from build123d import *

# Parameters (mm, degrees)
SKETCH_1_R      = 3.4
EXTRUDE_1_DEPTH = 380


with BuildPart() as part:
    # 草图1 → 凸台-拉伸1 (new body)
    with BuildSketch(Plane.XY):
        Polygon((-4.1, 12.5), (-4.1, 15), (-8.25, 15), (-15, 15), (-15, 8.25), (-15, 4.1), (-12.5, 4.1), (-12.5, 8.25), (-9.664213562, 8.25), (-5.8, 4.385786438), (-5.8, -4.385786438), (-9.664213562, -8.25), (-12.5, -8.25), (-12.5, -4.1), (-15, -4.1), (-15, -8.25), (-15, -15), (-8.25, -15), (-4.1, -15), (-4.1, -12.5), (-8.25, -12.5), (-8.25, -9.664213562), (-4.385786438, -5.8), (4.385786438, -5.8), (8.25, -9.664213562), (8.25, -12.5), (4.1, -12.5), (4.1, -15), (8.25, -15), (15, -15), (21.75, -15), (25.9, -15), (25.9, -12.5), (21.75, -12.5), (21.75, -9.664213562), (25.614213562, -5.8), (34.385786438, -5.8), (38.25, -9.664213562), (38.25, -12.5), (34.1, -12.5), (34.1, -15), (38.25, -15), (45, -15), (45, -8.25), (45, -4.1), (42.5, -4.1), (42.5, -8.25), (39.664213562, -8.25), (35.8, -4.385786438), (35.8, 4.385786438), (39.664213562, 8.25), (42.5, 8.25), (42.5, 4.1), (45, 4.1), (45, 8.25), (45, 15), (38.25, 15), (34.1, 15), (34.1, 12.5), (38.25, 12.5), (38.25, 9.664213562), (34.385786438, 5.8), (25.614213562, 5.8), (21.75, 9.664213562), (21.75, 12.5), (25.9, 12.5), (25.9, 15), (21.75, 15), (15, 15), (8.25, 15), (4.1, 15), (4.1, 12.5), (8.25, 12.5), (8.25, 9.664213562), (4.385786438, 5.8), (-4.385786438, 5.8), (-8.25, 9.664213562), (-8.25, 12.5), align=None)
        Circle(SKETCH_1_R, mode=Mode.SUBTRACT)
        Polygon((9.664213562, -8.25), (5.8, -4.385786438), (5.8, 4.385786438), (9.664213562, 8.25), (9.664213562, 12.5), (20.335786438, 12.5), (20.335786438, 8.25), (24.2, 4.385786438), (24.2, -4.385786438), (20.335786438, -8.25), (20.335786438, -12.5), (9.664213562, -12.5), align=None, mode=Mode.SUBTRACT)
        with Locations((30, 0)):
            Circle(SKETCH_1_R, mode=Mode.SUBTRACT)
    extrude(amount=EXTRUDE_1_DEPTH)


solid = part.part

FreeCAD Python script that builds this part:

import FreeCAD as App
import Part
import Sketcher

V = App.Vector
Q = App.Units.Quantity


def add_polygon(sketch, points):
    """Adds a closed chain of lines whose ends are joined by coincident constraints."""
    first, n = sketch.GeometryCount, len(points)
    for a, b in zip(points, points[1:] + points[:1]):
        sketch.addGeometry(Part.LineSegment(App.Vector(*a, 0), App.Vector(*b, 0)), False)
    for i in range(n):
        sketch.addConstraint(Sketcher.Constraint("Coincident", first + i, 2, first + (i + 1) % n, 1))

doc = App.newDocument("Part")
body = doc.addObject("PartDesign::Body", "Body")

sketch1 = doc.addObject("Sketcher::SketchObject", "Sketch")
body.addObject(sketch1)
sketch1.AttachmentSupport = (doc.XY_Plane, [""])
sketch1.MapMode = "FlatFace"
add_polygon(sketch1, [(-4.1, 12.5), (-4.1, 15), (-15, 15), (-15, 4.1), (-12.5, 4.1), (-12.5, 8.2), (-9.7, 8.2), (-5.8, 4.4), (-5.8, -4.4), (-9.7, -8.2), (-12.5, -8.2), (-12.5, -4.1), (-15, -4.1), (-15, -15), (-4.1, -15), (-4.1, -12.5), (-8.2, -12.5), (-8.2, -9.7), (-4.4, -5.8), (4.4, -5.8), (8.2, -9.7), (8.2, -12.5), (4.1, -12.5), (4.1, -15), (25.9, -15), (25.9, -12.5), (21.8, -12.5), (21.8, -9.7), (25.6, -5.8), (34.4, -5.8), (38.2, -9.7), (38.2, -12.5), (34.1, -12.5), (34.1, -15), (45, -15), (45, -4.1), (42.5, -4.1), (42.5, -8.2), (39.7, -8.2), (35.8, -4.4), (35.8, 4.4), (39.7, 8.2), (42.5, 8.2), (42.5, 4.1), (45, 4.1), (45, 15), (34.1, 15), (34.1, 12.5), (38.2, 12.5), (38.2, 9.7), (34.4, 5.8), (25.6, 5.8), (21.8, 9.7), (21.8, 12.5), (25.9, 12.5), (25.9, 15), (4.1, 15), (4.1, 12.5), (8.2, 12.5), (8.2, 9.7), (4.4, 5.8), (-4.4, 5.8), (-8.2, 9.7), (-8.2, 12.5)])
sketch1.addGeometry(Part.Circle(V(0, 0, 0), V(0, 0, 1), 3.4), False)
add_polygon(sketch1, [(9.7, -12.5), (9.7, -8.2), (5.8, -4.4), (5.8, 4.4), (9.7, 8.2), (9.7, 12.5), (20.3, 12.5), (20.3, 8.2), (24.2, 4.4), (24.2, -4.4), (20.3, -8.2), (20.3, -12.5)])
sketch1.addGeometry(Part.Circle(V(30, 0, 0), V(0, 0, 1), 3.4), False)
sketch1.addConstraint([
    Sketcher.Constraint("Vertical", 0),
    Sketcher.Constraint("Horizontal", 1),
    Sketcher.Constraint("Vertical", 2),
    Sketcher.Constraint("Horizontal", 3),
    Sketcher.Constraint("Vertical", 4),
    Sketcher.Constraint("Horizontal", 5),
    Sketcher.Constraint("Vertical", 7),
    Sketcher.Constraint("Horizontal", 9),
    Sketcher.Constraint("Vertical", 10),
    Sketcher.Constraint("Horizontal", 11),
    Sketcher.Constraint("Vertical", 12),
    Sketcher.Constraint("Horizontal", 13),
    Sketcher.Constraint("Vertical", 14),
    Sketcher.Constraint("Horizontal", 15),
    Sketcher.Constraint("Vertical", 16),
    Sketcher.Constraint("Horizontal", 18),
    Sketcher.Constraint("Vertical", 20),
    Sketcher.Constraint("Horizontal", 21),
    Sketcher.Constraint("Vertical", 22),
    Sketcher.Constraint("Horizontal", 23),
    Sketcher.Constraint("Vertical", 24),
    Sketcher.Constraint("Horizontal", 25),
    Sketcher.Constraint("Vertical", 26),
    Sketcher.Constraint("Horizontal", 28),
    Sketcher.Constraint("Vertical", 30),
    Sketcher.Constraint("Horizontal", 31),
    Sketcher.Constraint("Vertical", 32),
    Sketcher.Constraint("Horizontal", 33),
    Sketcher.Constraint("Vertical", 34),
    Sketcher.Constraint("Horizontal", 35),
    Sketcher.Constraint("Vertical", 36),
    Sketcher.Constraint("Horizontal", 37),
    Sketcher.Constraint("Vertical", 39),
    Sketcher.Constraint("Horizontal", 41),
    Sketcher.Constraint("Vertical", 42),
    Sketcher.Constraint("Horizontal", 43),
    Sketcher.Constraint("Vertical", 44),
    Sketcher.Constraint("Horizontal", 45),
    Sketcher.Constraint("Vertical", 46),
    Sketcher.Constraint("Horizontal", 47),
    Sketcher.Constraint("Vertical", 48),
    Sketcher.Constraint("Horizontal", 50),
    Sketcher.Constraint("Vertical", 52),
    Sketcher.Constraint("Horizontal", 53),
    Sketcher.Constraint("Vertical", 54),
    Sketcher.Constraint("Horizontal", 55),
    Sketcher.Constraint("Vertical", 56),
    Sketcher.Constraint("Horizontal", 57),
    Sketcher.Constraint("Vertical", 58),
    Sketcher.Constraint("Horizontal", 60),
    Sketcher.Constraint("Vertical", 62),
    Sketcher.Constraint("Horizontal", 63),
    Sketcher.Constraint("Vertical", 65),
    Sketcher.Constraint("Vertical", 67),
    Sketcher.Constraint("Vertical", 69),
    Sketcher.Constraint("Horizontal", 70),
    Sketcher.Constraint("Vertical", 71),
    Sketcher.Constraint("Vertical", 73),
    Sketcher.Constraint("Vertical", 75),
    Sketcher.Constraint("Horizontal", 76),
    Sketcher.Constraint("Coincident", 64, 3, -1, 1),
    Sketcher.Constraint("Equal", 64, 77),
    Sketcher.Constraint("Symmetric", 0, 2, 22, 2, -1, 1),
    Sketcher.Constraint("Symmetric", 13, 2, 55, 2, -1, 1),
    Sketcher.Constraint("Symmetric", 15, 2, 57, 2, -1, 1),
    Sketcher.Constraint("Symmetric", 17, 2, 59, 2, -1, 1),
    Sketcher.Constraint("Symmetric", 19, 2, 61, 2, -1, 1),
    Sketcher.Constraint("Symmetric", 5, 2, 65, 2, -1, 1),
    Sketcher.Constraint("Symmetric", 6, 2, 66, 2, -1, 1),
    Sketcher.Constraint("Symmetric", 8, 2, 68, 2, -1, 1),
    Sketcher.Constraint("Symmetric", 16, 2, 19, 2, -2),
    Sketcher.Constraint("Symmetric", 14, 2, 21, 2, -2),
    Sketcher.Constraint("Symmetric", 8, 2, 65, 2, -2),
    Sketcher.Constraint("Symmetric", 3, 2, 10, 2, -1),
    Sketcher.Constraint("Symmetric", 1, 2, 12, 2, -1),
    Sketcher.Constraint("Symmetric", 37, 2, 40, 2, -1),
    Sketcher.Constraint("Symmetric", 35, 2, 42, 2, -1),
    Sketcher.Constraint("Symmetric", 33, 2, 44, 2, -1),
    Sketcher.Constraint("Symmetric", 31, 2, 46, 2, -1),
    Sketcher.Constraint("Symmetric", 29, 2, 48, 2, -1),
    Sketcher.Constraint("Symmetric", 28, 2, 49, 2, -1),
    Sketcher.Constraint("Symmetric", 26, 2, 51, 2, -1),
    Sketcher.Constraint("Symmetric", 24, 2, 53, 2, -1),
    Sketcher.Constraint("Symmetric", 71, 2, 74, 2, -1),
    Sketcher.Constraint("PointOnObject", 77, 3, -1),
    Sketcher.Constraint("Perpendicular", 6, 8),
    Sketcher.Constraint("Parallel", 8, 17),
    Sketcher.Constraint("Perpendicular", 17, 19),
    Sketcher.Constraint("Perpendicular", 19, 27),
    Sketcher.Constraint("Perpendicular", 27, 29),
    Sketcher.Constraint("Parallel", 29, 38),
    Sketcher.Constraint("Perpendicular", 38, 40),
    Sketcher.Constraint("Parallel", 40, 49),
    Sketcher.Constraint("Perpendicular", 49, 51),
    Sketcher.Constraint("Perpendicular", 51, 59),
    Sketcher.Constraint("Perpendicular", 59, 61),
    Sketcher.Constraint("Perpendicular", 66, 68),
    Sketcher.Constraint("Perpendicular", 68, 72),
    Sketcher.Constraint("Perpendicular", 72, 74),
    Sketcher.Constraint("Horizontal", 21, 2, 24, 2),
    Sketcher.Constraint("Horizontal", 19, 2, 26, 2),
    Sketcher.Constraint("Horizontal", 18, 2, 27, 2),
    Sketcher.Constraint("Horizontal", 26, 2, 29, 2),
    Sketcher.Constraint("Horizontal", 25, 2, 30, 2),
    Sketcher.Constraint("Horizontal", 23, 2, 32, 2),
    Sketcher.Constraint("Horizontal", 11, 2, 34, 2),
    Sketcher.Constraint("Horizontal", 9, 2, 36, 2),
    Sketcher.Constraint("Horizontal", 7, 2, 38, 2),
    Sketcher.Constraint("Horizontal", 57, 2, 62, 2),
    Sketcher.Constraint("Horizontal", 63, 2, 69, 2),
    Sketcher.Constraint("Horizontal", 68, 2, 71, 2),
    Sketcher.Constraint("Horizontal", 67, 2, 72, 2),
    Sketcher.Constraint("Horizontal", 31, 2, 75, 2),
    Sketcher.Constraint("Equal", 21, 25),
    Sketcher.Constraint("Equal", 18, 28),
    Sketcher.Constraint("Equal", 25, 31),
    Sketcher.Constraint("Equal", 13, 33),
    Sketcher.Constraint("Equal", 11, 35),
    Sketcher.Constraint("Equal", 9, 37),
    Sketcher.Constraint("Equal", 43, 0),
    Sketcher.Constraint("Equal", 45, 2),
    Sketcher.Constraint("Equal", 63, 4),
    Sketcher.Constraint("Equal", 60, 7),
    Sketcher.Constraint("Equal", 41, 16),
    Sketcher.Constraint("Equal", 8, 17),
    Sketcher.Constraint("Diameter", 64, Q("6.8 mm")),
    Sketcher.Constraint("DistanceX", 1, 2, 1, 1, Q("10.9 mm")),
    Sketcher.Constraint("DistanceX", 3, 1, 3, 2, Q("2.5 mm")),
    Sketcher.Constraint("DistanceX", 23, 1, 23, 2, Q("21.8 mm")),
    Sketcher.Constraint("DistanceX", -1, 1, 77, 3, Q("30 mm")),
    Sketcher.Constraint("DistanceY", -1, 1, 0, 2, Q("15 mm")),
    Sketcher.Constraint("DistanceX", 15, 2, 15, 1, Q("4.15 mm")),
    Sketcher.Constraint("DistanceX", 6, 2, -1, 1, Q("5.8 mm")),
    Sketcher.Constraint("DistanceX", -1, 1, 72, 2, Q("24.2 mm")),
    Sketcher.Constraint("DistanceX", 5, 1, 5, 2, Q("2.835786 mm")),
])
pad1 = doc.addObject("PartDesign::Pad", "Pad")
body.addObject(pad1)
pad1.Profile = sketch1
pad1.Length = 380

doc.recompute()
